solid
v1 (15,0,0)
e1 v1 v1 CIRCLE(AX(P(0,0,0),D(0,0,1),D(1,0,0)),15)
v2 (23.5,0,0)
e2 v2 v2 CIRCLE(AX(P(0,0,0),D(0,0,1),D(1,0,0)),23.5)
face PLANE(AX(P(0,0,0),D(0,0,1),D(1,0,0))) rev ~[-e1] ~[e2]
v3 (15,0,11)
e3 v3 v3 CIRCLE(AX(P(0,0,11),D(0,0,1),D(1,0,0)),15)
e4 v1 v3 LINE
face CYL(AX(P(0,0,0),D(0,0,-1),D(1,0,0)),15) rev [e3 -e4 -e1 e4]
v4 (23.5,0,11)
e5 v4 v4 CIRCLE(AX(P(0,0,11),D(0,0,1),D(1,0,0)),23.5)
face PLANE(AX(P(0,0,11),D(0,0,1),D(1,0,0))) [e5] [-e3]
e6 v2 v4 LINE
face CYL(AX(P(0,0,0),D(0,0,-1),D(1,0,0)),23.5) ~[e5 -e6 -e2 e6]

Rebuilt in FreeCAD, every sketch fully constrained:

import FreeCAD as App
import Part
import Sketcher

V = App.Vector
Q = App.Units.Quantity

doc = App.newDocument("Part")
body = doc.addObject("PartDesign::Body", "Body")

sketch1 = body.newObject("Sketcher::SketchObject", "Sketch")
sketch1.AttachmentSupport = (doc.getObject("XY_Plane"), [""])
sketch1.MapMode = "FlatFace"
sketch1.addGeometry([
    Part.Circle(V(0, 0, 0), V(0, 0, 1), 23.5),
    Part.Circle(V(0, 0, 0), V(0, 0, 1), 15),
], False)
sketch1.addConstraint([
    Sketcher.Constraint("Coincident", 0, 3, -1, 1),
    Sketcher.Constraint("Coincident", 1, 3, -1, 1),
    Sketcher.Constraint("Diameter", 0, Q("47 mm")),
    Sketcher.Constraint("Diameter", 1, Q("30 mm")),
])
pad1 = body.newObject("PartDesign::Pad", "Pad")
pad1.Profile = sketch1
pad1.Length = 11

doc.recompute()
